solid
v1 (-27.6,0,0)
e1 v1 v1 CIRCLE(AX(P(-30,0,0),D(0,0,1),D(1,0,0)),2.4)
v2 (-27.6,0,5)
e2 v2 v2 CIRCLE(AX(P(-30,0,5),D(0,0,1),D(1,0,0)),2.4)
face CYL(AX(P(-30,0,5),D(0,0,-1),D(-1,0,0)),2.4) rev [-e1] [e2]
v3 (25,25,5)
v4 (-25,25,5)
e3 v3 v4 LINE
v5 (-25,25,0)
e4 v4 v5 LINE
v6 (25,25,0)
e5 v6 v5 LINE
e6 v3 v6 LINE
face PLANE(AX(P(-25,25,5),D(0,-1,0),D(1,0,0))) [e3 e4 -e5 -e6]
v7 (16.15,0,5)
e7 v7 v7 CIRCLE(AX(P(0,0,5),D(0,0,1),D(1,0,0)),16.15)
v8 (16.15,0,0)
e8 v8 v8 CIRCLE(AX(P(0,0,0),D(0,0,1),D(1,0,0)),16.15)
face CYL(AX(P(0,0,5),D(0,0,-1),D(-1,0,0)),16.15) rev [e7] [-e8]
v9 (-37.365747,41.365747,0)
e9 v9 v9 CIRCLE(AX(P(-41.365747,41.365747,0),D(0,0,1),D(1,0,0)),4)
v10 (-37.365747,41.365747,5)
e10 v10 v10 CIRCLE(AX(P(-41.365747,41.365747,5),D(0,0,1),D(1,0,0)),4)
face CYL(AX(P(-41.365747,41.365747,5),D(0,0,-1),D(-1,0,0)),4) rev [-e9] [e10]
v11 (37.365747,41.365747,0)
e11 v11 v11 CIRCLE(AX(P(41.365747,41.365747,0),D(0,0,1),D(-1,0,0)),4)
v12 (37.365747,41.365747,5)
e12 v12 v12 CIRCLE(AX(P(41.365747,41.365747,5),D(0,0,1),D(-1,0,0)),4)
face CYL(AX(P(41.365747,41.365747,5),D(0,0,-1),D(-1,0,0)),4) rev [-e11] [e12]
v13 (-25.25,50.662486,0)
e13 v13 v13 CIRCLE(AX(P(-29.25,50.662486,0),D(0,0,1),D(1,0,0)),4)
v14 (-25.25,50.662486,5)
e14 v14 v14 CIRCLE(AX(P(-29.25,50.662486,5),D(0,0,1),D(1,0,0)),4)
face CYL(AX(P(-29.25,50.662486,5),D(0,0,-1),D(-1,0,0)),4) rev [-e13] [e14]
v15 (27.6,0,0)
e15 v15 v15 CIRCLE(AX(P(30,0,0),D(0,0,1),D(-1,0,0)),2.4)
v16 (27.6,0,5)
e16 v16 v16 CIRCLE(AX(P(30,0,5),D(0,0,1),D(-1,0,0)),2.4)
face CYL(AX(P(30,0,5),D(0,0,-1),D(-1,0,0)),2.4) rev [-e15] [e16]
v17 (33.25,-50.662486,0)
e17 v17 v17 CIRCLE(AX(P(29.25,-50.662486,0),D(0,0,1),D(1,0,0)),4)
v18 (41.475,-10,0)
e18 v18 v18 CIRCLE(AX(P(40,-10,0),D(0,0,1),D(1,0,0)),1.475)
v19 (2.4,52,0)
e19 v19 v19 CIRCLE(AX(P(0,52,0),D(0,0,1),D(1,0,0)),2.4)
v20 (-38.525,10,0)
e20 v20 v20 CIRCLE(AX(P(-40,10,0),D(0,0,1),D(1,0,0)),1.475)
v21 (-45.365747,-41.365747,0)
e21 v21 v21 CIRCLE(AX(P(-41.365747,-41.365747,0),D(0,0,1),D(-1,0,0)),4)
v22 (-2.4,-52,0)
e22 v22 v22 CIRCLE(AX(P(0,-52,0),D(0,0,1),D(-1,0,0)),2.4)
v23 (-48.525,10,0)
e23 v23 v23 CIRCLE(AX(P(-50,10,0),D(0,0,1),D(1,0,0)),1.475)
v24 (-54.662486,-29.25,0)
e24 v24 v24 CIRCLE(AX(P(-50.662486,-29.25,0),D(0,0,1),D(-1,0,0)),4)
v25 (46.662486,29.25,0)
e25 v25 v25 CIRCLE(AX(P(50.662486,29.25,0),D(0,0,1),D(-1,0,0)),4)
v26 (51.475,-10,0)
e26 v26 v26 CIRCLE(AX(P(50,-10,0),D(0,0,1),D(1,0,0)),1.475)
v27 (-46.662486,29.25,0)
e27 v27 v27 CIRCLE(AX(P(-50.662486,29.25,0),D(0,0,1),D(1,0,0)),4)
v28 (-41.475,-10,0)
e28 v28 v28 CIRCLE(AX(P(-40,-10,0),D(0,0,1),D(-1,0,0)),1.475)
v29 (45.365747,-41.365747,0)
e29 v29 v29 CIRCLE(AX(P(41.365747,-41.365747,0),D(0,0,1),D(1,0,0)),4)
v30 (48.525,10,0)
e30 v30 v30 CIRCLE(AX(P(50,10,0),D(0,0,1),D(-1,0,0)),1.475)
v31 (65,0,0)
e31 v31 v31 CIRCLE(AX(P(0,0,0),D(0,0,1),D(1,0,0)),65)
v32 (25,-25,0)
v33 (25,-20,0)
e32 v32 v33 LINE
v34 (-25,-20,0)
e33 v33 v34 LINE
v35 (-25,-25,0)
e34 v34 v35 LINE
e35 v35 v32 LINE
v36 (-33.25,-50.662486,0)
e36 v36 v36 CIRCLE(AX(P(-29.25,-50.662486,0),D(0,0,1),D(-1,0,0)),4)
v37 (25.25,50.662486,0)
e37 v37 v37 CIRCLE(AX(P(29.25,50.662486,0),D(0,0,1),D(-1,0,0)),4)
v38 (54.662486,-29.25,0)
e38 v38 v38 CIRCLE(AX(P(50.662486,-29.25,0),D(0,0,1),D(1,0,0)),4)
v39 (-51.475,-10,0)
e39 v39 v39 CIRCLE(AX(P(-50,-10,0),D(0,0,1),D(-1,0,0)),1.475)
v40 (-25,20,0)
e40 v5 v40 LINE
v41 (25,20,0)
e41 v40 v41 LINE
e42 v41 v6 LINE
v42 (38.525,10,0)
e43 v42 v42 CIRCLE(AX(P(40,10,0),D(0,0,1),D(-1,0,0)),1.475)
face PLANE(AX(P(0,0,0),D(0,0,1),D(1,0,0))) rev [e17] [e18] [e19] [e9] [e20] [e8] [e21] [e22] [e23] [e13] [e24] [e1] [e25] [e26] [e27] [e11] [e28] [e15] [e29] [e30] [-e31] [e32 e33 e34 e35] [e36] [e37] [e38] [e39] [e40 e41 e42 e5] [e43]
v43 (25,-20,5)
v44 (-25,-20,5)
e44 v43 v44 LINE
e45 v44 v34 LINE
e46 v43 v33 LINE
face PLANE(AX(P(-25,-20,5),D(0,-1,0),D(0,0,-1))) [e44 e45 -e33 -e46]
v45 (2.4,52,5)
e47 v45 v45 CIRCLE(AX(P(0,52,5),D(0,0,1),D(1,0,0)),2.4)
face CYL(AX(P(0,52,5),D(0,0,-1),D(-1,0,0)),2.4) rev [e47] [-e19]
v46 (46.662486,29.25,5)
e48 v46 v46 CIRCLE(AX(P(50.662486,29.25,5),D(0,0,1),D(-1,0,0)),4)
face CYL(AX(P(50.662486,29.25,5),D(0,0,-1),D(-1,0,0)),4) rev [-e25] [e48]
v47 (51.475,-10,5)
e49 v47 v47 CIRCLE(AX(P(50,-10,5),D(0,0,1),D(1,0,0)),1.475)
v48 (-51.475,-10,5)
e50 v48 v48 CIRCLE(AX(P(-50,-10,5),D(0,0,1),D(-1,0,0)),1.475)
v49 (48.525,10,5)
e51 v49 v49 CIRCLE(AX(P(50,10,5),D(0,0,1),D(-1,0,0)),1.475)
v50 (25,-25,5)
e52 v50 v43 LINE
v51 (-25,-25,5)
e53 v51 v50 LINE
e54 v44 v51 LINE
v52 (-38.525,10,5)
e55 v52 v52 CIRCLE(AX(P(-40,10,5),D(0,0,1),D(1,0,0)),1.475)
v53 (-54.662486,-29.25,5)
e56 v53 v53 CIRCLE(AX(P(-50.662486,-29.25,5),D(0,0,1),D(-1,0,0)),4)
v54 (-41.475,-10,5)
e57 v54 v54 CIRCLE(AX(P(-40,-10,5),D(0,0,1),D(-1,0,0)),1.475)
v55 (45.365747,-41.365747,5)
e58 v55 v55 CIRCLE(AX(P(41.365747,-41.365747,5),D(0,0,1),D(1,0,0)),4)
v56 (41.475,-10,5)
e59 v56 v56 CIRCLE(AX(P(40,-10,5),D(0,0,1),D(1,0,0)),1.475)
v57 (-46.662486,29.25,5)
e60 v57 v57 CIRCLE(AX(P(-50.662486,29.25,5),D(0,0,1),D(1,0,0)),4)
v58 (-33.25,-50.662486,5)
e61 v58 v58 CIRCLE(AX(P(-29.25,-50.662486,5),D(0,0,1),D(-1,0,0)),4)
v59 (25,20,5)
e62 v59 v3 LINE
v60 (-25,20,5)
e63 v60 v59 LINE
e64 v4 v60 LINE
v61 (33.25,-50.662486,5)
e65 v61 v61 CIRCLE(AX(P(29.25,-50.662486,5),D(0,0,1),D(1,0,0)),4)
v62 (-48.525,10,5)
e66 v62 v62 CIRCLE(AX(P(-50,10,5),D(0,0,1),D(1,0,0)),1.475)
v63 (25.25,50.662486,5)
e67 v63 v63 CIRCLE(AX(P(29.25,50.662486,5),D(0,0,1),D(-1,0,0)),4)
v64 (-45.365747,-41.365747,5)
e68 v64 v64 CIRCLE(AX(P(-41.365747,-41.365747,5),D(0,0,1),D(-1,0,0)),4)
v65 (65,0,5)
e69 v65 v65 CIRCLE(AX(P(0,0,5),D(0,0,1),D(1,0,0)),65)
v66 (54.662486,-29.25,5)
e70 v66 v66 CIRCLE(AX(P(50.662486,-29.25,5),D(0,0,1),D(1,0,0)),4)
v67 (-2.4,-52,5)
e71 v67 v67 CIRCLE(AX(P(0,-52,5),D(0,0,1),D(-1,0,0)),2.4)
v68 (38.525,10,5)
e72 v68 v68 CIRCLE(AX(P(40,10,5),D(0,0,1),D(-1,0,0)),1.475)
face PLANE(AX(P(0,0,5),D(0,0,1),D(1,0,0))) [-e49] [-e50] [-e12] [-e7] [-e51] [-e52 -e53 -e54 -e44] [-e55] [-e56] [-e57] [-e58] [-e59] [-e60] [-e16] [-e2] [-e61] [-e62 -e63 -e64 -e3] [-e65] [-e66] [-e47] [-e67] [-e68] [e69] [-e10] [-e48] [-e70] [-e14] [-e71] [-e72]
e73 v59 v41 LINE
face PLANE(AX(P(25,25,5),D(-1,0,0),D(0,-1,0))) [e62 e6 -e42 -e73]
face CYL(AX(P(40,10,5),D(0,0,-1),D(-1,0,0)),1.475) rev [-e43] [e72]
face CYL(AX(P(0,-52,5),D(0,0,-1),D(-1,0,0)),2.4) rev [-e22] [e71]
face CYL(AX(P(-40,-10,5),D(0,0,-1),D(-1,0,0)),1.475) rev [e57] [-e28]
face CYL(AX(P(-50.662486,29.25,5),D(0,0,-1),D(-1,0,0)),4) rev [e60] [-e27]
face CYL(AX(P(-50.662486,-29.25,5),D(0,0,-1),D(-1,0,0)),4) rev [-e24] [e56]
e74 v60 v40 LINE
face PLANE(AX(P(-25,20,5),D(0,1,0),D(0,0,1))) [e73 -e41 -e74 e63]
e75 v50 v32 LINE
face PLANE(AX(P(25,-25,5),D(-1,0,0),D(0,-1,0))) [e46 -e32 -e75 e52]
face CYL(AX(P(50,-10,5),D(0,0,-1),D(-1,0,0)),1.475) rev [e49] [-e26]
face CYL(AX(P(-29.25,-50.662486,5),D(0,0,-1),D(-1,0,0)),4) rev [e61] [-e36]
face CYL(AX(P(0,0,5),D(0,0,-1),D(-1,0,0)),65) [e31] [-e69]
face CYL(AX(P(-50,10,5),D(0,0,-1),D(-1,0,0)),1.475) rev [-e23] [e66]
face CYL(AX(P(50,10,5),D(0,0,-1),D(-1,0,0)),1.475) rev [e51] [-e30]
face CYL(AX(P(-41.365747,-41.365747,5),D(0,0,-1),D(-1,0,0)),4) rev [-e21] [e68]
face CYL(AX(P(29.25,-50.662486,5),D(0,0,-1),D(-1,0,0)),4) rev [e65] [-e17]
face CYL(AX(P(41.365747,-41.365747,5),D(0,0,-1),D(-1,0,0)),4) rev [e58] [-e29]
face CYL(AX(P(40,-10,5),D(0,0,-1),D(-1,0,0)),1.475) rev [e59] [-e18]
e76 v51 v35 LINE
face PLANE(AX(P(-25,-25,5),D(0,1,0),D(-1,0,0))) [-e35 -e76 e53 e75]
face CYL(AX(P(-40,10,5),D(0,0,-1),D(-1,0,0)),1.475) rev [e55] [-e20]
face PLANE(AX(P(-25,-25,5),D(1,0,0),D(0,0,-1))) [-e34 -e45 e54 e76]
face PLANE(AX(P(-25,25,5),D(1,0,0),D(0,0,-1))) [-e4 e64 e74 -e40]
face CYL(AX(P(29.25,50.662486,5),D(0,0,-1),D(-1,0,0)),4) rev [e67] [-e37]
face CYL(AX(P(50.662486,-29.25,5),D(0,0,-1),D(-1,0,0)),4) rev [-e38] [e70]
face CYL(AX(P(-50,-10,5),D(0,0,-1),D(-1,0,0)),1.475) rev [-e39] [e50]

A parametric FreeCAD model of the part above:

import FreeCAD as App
import Part
import Sketcher


def add_polygon(sketch, points):
    """Adds a closed chain of lines whose ends are joined by coincident constraints."""
    first, n = sketch.GeometryCount, len(points)
    for a, b in zip(points, points[1:] + points[:1]):
        sketch.addGeometry(Part.LineSegment(App.Vector(*a, 0), App.Vector(*b, 0)), False)
    for i in range(n):
        sketch.addConstraint(Sketcher.Constraint("Coincident", first + i, 2, first + (i + 1) % n, 1))

doc = App.newDocument("Part")
body = doc.addObject("PartDesign::Body", "Body")

# Sketch on XY plane
sketch1 = body.newObject("Sketcher::SketchObject", "Sketch")
sketch1.AttachmentSupport = (doc.getObject("XY_Plane"), [""])
sketch1.MapMode = "FlatFace"
sketch1.addGeometry(Part.Circle(App.Vector(0, 0, 0), App.Vector(0, 0, 1), 65), False)  # 0
sketch1.addGeometry(Part.Circle(App.Vector(-41.4, -41.4, 0), App.Vector(0, 0, 1), 4), False)  # 1
sketch1.addGeometry(Part.Circle(App.Vector(-29.2, -50.7, 0), App.Vector(0, 0, 1), 4), False)  # 2
sketch1.addGeometry(Part.Circle(App.Vector(-50.7, -29.2, 0), App.Vector(0, 0, 1), 4), False)  # 3
sketch1.addGeometry(Part.Circle(App.Vector(-50, -10, 0), App.Vector(0, 0, 1), 1.5), False)  # 4
sketch1.addGeometry(Part.Circle(App.Vector(-40, -10, 0), App.Vector(0, 0, 1), 1.5), False)  # 5
sketch1.addGeometry(Part.Circle(App.Vector(0, -52, 0), App.Vector(0, 0, 1), 2.4), False)  # 6
sketch1.addGeometry(Part.Circle(App.Vector(29.2, -50.7, 0), App.Vector(0, 0, 1), 4), False)  # 7
sketch1.addGeometry(Part.Circle(App.Vector(41.4, -41.4, 0), App.Vector(0, 0, 1), 4), False)  # 8
sketch1.addGeometry(Part.Circle(App.Vector(50.7, -29.2, 0), App.Vector(0, 0, 1), 4), False)  # 9
add_polygon(sketch1, [(25, -25), (-25, -25), (-25, -20), (25, -20)])  # lines 10-13
sketch1.addGeometry(Part.Circle(App.Vector(40, -10, 0), App.Vector(0, 0, 1), 1.5), False)  # 14
sketch1.addGeometry(Part.Circle(App.Vector(50, -10, 0), App.Vector(0, 0, 1), 1.5), False)  # 15
sketch1.addGeometry(Part.Circle(App.Vector(-50, 10, 0), App.Vector(0, 0, 1), 1.5), False)  # 16
sketch1.addGeometry(Part.Circle(App.Vector(-30, 0, 0), App.Vector(0, 0, 1), 2.4), False)  # 17
sketch1.addGeometry(Part.Circle(App.Vector(-40, 10, 0), App.Vector(0, 0, 1), 1.5), False)  # 18
sketch1.addGeometry(Part.Circle(App.Vector(-50.7, 29.2, 0), App.Vector(0, 0, 1), 4), False)  # 19
sketch1.addGeometry(Part.Circle(App.Vector(-41.4, 41.4, 0), App.Vector(0, 0, 1), 4), False)  # 20
sketch1.addGeometry(Part.Circle(App.Vector(-29.2, 50.7, 0), App.Vector(0, 0, 1), 4), False)  # 21
sketch1.addGeometry(Part.Circle(App.Vector(0, 0, 0), App.Vector(0, 0, 1), 16.1), False)  # 22
add_polygon(sketch1, [(25, 20), (-25, 20), (-25, 25), (25, 25)])  # lines 23-26
sketch1.addGeometry(Part.Circle(App.Vector(30, 0, 0), App.Vector(0, 0, 1), 2.4), False)  # 27
sketch1.addGeometry(Part.Circle(App.Vector(40, 10, 0), App.Vector(0, 0, 1), 1.5), False)  # 28
sketch1.addGeometry(Part.Circle(App.Vector(50, 10, 0), App.Vector(0, 0, 1), 1.5), False)  # 29
sketch1.addGeometry(Part.Circle(App.Vector(0, 52, 0), App.Vector(0, 0, 1), 2.4), False)  # 30
sketch1.addGeometry(Part.Circle(App.Vector(50.7, 29.2, 0), App.Vector(0, 0, 1), 4), False)  # 31
sketch1.addGeometry(Part.Circle(App.Vector(29.2, 50.7, 0), App.Vector(0, 0, 1), 4), False)  # 32
sketch1.addGeometry(Part.Circle(App.Vector(41.4, 41.4, 0), App.Vector(0, 0, 1), 4), False)  # 33
sketch1.addConstraint([
    Sketcher.Constraint("Horizontal", 10),
    Sketcher.Constraint("Vertical", 11),
    Sketcher.Constraint("Horizontal", 12),
    Sketcher.Constraint("Vertical", 13),
    Sketcher.Constraint("Horizontal", 23),
    Sketcher.Constraint("Vertical", 24),
    Sketcher.Constraint("Horizontal", 25),
    Sketcher.Constraint("Vertical", 26),
    Sketcher.Constraint("Coincident", 0, 3, -1, 1),
    Sketcher.Constraint("Coincident", 22, 3, -1, 1),
    Sketcher.Constraint("Equal", 1, 2),
    Sketcher.Constraint("Equal", 2, 3),
    Sketcher.Constraint("Equal", 4, 5),
    Sketcher.Constraint("Equal", 3, 7),
    Sketcher.Constraint("Equal", 7, 8),
    Sketcher.Constraint("Equal", 8, 9),
    Sketcher.Constraint("Equal", 5, 14),
    Sketcher.Constraint("Equal", 14, 15),
    Sketcher.Constraint("Equal", 15, 16),
    Sketcher.Constraint("Equal", 6, 17),
    Sketcher.Constraint("Equal", 16, 18),
    Sketcher.Constraint("Equal", 9, 19),
    Sketcher.Constraint("Equal", 19, 20),
    Sketcher.Constraint("Equal", 20, 21),
    Sketcher.Constraint("Equal", 17, 27),
    Sketcher.Constraint("Equal", 18, 28),
    Sketcher.Constraint("Equal", 28, 29),
    Sketcher.Constraint("Equal", 27, 30),
    Sketcher.Constraint("Equal", 21, 31),
    Sketcher.Constraint("Equal", 31, 32),
    Sketcher.Constraint("Equal", 32, 33),
    Sketcher.Constraint("Symmetric", 15, 3, 16, 3, -1, 1),
    Sketcher.Constraint("Symmetric", 14, 3, 18, 3, -1, 1),
    Sketcher.Constraint("Symmetric", 9, 3, 19, 3, -1, 1),
    Sketcher.Constraint("Symmetric", 8, 3, 20, 3, -1, 1),
    Sketcher.Constraint("Symmetric", 7, 3, 21, 3, -1, 1),
    Sketcher.Constraint("Symmetric", 17, 3, 27, 3, -1, 1),
    Sketcher.Constraint("Symmetric", 5, 3, 28, 3, -1, 1),
    Sketcher.Constraint("Symmetric", 4, 3, 29, 3, -1, 1),
    Sketcher.Constraint("Symmetric", 6, 3, 30, 3, -1, 1),
    Sketcher.Constraint("Symmetric", 3, 3, 31, 3, -1, 1),
    Sketcher.Constraint("Symmetric", 2, 3, 32, 3, -1, 1),
    Sketcher.Constraint("Symmetric", 1, 3, 33, 3, -1, 1),
    Sketcher.Constraint("Symmetric", 12, 2, 23, 2, -1, 1),
    Sketcher.Constraint("Symmetric", 10, 2, 25, 2, -1, 1),
    Sketcher.Constraint("Symmetric", 2, 3, 7, 3, -2),
    Sketcher.Constraint("Symmetric", 1, 3, 8, 3, -2),
    Sketcher.Constraint("Symmetric", 3, 3, 9, 3, -2),
    Sketcher.Constraint("Symmetric", 5, 3, 14, 3, -2),
    Sketcher.Constraint("Symmetric", 4, 3, 15, 3, -2),
    Sketcher.Constraint("PointOnObject", 6, 3, -2),
    Sketcher.Constraint("PointOnObject", 17, 3, -1),
    Sketcher.Constraint("Horizontal", 4, 3, 5, 3),
    Sketcher.Constraint("Vertical", 11, 2, 23, 2),
    Sketcher.Constraint("Diameter", 0, 130.0),
    Sketcher.Constraint("Diameter", 1, 8.0),
    Sketcher.Constraint("Diameter", 6, 4.8),
    Sketcher.Constraint("Diameter", 22, 32.3),
    Sketcher.Constraint("Diameter", 4, 2.95),
    Sketcher.Constraint("DistanceX", 10, 2, 10, 1, 50.0),
    Sketcher.Constraint("DistanceY", 11, 1, 11, 2, 5.0),
    Sketcher.Constraint("DistanceX", 4, 3, -1, 1, 50.0),
    Sketcher.Constraint("DistanceY", 4, 3, -1, 1, 10.0),
    Sketcher.Constraint("DistanceX", 5, 3, -1, 1, 40.0),
    Sketcher.Constraint("DistanceY", 6, 3, -1, 1, 52.0),
    Sketcher.Constraint("DistanceX", 17, 3, -1, 1, 30.0),
    Sketcher.Constraint("DistanceY", 10, 2, -1, 1, 25.0),
    Sketcher.Constraint("DistanceX", 2, 3, 7, 3, 58.5),
    Sketcher.Constraint("DistanceY", 3, 3, -1, 1, 29.25),
    Sketcher.Constraint("DistanceY", 2, 3, 1, 3, 9.296739),
    Sketcher.Constraint("DistanceX", 3, 3, 1, 3, 9.296739),
    Sketcher.Constraint("DistanceX", 1, 3, -1, 1, 41.365747),
    Sketcher.Constraint("DistanceY", 1, 3, -1, 1, 41.365747),
])
pad1 = body.newObject("PartDesign::Pad", "Pad")
pad1.Profile = sketch1
pad1.Length = 5

doc.recompute()
